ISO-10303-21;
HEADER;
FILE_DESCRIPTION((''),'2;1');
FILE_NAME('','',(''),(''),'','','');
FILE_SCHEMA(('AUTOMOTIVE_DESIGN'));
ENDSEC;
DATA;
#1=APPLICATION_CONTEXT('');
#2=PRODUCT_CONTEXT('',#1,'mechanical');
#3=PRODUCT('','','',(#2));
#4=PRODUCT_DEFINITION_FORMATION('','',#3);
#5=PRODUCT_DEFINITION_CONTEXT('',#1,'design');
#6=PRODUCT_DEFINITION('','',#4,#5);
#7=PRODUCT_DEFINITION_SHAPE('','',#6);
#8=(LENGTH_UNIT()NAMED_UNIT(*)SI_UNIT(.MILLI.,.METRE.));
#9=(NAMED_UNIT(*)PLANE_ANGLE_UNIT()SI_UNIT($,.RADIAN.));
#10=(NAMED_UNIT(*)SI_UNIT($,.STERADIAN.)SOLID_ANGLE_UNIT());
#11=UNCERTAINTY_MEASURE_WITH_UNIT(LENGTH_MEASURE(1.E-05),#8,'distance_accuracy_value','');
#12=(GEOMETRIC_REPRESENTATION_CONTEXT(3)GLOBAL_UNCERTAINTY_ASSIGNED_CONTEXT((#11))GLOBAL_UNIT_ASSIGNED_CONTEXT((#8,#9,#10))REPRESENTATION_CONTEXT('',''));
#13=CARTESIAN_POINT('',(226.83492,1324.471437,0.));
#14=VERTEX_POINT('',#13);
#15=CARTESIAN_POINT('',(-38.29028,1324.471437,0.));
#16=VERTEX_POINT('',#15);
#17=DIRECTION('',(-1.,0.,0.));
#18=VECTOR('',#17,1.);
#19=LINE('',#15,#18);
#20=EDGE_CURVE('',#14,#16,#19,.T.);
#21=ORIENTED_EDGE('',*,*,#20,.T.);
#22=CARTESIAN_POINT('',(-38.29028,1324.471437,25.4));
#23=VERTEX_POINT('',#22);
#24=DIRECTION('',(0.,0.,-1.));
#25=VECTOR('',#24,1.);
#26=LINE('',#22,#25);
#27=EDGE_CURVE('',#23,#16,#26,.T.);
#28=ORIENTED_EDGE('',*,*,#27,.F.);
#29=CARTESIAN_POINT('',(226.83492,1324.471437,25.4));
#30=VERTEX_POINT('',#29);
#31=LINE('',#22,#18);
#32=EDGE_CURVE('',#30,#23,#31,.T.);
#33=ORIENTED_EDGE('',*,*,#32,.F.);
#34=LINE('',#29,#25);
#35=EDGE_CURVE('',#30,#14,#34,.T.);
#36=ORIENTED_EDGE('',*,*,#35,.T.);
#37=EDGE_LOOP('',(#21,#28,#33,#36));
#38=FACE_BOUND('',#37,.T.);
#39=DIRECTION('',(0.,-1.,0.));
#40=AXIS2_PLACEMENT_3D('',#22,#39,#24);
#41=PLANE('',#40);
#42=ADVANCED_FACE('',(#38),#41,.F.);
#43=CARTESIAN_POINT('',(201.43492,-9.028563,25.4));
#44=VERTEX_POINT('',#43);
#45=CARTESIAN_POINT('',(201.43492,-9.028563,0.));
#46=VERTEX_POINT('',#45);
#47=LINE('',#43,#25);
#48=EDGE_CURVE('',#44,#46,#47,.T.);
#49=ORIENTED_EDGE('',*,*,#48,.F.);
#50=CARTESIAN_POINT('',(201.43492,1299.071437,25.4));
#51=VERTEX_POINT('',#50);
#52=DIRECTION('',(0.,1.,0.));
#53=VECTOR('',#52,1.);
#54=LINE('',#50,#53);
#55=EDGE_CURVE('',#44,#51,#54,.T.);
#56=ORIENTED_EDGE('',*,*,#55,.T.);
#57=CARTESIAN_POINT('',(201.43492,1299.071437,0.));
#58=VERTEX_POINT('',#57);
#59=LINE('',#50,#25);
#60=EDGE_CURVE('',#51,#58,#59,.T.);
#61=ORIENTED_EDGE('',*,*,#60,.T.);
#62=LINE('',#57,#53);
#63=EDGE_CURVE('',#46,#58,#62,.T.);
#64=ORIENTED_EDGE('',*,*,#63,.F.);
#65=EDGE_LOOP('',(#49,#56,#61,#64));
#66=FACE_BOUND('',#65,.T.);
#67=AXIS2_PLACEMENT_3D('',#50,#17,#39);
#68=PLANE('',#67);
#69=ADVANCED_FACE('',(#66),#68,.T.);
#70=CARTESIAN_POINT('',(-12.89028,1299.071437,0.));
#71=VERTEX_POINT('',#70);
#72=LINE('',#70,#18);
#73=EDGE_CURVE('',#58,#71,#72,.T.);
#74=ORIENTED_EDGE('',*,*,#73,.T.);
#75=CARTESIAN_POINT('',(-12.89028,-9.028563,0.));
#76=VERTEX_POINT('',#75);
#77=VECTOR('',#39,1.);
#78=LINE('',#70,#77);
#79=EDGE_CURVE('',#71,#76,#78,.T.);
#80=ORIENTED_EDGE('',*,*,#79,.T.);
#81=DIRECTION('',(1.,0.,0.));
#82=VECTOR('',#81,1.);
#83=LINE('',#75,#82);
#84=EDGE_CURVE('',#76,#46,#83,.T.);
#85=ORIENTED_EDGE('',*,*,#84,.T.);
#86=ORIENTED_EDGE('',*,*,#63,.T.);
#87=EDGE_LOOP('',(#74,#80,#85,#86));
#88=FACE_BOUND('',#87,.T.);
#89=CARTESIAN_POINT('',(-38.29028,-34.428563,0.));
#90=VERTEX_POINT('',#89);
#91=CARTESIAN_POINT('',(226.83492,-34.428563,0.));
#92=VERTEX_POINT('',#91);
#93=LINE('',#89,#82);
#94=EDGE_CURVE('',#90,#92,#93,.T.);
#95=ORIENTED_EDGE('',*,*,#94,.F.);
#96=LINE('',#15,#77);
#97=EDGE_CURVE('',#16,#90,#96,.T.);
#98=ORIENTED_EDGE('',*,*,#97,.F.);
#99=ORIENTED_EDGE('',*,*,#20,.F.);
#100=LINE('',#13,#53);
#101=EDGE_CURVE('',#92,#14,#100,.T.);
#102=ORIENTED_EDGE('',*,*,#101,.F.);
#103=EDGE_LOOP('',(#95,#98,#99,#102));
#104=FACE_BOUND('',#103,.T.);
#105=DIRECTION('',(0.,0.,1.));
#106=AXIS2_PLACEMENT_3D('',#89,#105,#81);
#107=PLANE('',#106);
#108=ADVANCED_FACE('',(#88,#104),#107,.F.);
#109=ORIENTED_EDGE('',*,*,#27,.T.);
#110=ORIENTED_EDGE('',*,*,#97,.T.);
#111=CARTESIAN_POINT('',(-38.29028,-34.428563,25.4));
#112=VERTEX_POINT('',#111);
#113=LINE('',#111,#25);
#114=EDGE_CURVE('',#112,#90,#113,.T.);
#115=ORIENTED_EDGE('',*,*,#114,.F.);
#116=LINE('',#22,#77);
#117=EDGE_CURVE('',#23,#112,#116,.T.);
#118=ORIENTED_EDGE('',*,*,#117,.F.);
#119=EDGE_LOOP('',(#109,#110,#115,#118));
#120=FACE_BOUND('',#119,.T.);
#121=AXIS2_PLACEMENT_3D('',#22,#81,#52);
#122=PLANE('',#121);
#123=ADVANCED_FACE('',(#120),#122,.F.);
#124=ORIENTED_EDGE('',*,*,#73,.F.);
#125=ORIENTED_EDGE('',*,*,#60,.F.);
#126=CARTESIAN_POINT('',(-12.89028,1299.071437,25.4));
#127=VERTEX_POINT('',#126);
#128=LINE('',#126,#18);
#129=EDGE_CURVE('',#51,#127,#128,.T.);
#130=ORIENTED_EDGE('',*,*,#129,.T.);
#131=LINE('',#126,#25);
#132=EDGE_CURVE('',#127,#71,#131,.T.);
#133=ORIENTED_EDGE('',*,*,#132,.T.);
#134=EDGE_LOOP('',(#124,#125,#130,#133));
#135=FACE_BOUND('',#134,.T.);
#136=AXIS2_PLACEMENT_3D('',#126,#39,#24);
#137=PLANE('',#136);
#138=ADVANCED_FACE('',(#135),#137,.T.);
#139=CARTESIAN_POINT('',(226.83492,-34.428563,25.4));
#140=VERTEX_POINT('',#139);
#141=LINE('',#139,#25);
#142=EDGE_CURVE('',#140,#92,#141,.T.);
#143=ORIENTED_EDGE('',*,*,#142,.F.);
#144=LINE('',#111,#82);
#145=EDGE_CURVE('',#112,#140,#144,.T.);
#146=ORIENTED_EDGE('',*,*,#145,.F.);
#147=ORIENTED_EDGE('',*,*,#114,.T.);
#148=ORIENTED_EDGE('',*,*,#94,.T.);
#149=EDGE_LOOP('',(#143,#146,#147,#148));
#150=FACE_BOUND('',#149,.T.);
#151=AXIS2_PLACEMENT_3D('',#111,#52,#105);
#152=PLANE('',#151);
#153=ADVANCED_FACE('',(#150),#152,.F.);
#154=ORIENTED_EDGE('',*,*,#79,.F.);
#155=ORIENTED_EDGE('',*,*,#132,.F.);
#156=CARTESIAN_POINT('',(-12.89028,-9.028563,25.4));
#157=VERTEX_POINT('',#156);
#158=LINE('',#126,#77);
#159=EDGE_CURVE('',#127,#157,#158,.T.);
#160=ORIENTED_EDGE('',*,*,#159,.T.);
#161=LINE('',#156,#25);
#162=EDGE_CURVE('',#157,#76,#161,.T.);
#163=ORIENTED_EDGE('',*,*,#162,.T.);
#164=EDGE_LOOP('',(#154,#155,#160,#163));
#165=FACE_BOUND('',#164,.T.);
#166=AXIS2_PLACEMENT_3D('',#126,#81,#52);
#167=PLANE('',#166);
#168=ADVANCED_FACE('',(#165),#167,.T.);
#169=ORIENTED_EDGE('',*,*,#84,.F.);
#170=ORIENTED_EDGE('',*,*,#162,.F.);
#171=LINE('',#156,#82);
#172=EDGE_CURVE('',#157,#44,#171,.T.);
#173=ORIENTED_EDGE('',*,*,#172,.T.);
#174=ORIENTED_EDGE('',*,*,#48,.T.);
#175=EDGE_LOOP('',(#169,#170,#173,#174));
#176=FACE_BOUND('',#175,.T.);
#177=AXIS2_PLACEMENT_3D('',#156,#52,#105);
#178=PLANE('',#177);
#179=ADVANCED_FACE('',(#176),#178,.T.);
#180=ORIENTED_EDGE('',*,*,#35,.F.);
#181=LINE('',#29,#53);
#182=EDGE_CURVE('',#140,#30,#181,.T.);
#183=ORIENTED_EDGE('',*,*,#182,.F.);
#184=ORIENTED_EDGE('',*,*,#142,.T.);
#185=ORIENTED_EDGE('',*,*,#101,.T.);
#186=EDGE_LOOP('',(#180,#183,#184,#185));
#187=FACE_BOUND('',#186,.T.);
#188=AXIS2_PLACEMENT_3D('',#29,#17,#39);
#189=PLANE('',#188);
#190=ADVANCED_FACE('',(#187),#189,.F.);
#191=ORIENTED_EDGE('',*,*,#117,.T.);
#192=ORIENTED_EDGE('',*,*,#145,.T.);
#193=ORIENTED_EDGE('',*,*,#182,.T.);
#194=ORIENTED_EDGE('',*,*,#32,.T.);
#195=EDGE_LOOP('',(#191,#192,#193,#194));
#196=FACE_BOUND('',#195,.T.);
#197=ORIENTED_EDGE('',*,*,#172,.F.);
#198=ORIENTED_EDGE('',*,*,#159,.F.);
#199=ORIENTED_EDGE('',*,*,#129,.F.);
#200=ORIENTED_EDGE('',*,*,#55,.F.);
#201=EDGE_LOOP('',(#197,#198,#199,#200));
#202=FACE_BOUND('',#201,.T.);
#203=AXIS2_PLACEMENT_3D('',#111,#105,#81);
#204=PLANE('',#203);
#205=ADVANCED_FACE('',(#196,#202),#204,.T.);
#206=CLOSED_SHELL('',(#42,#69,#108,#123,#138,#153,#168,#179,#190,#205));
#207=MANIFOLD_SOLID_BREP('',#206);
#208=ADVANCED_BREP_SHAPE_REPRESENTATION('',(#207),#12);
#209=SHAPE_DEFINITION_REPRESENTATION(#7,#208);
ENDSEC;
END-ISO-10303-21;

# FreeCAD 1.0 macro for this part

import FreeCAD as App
import Part
import Sketcher

V = App.Vector
Q = App.Units.Quantity


def add_polygon(sketch, points):
    """Adds a closed chain of lines whose ends are joined by coincident constraints."""
    first, n = sketch.GeometryCount, len(points)
    for a, b in zip(points, points[1:] + points[:1]):
        sketch.addGeometry(Part.LineSegment(App.Vector(*a, 0), App.Vector(*b, 0)), False)
    for i in range(n):
        sketch.addConstraint(Sketcher.Constraint("Coincident", first + i, 2, first + (i + 1) % n, 1))

doc = App.newDocument("Part")
body = doc.addObject("PartDesign::Body", "Body")

sketch1 = body.newObject("Sketcher::SketchObject", "Sketch")
sketch1.AttachmentSupport = (doc.getObject("XY_Plane"), [""])
sketch1.MapMode = "FlatFace"
add_polygon(sketch1, [(-38.29028, 1324.471437), (-38.29028, -34.428563), (226.83492, -34.428563), (226.83492, 1324.471437)])
add_polygon(sketch1, [(201.43492, -9.028563), (-12.89028, -9.028563), (-12.89028, 1299.071437), (201.43492, 1299.071437)])
sketch1.addConstraint([
    Sketcher.Constraint("Vertical", 0),
    Sketcher.Constraint("Horizontal", 1),
    Sketcher.Constraint("Vertical", 2),
    Sketcher.Constraint("Horizontal", 3),
    Sketcher.Constraint("Horizontal", 4),
    Sketcher.Constraint("Vertical", 5),
    Sketcher.Constraint("Horizontal", 6),
    Sketcher.Constraint("Vertical", 7),
    Sketcher.Constraint("DistanceY", 0, 2, 0, 1, Q("53.5 in")),
    Sketcher.Constraint("DistanceY", 5, 1, 5, 2, Q("51.5 in")),
    Sketcher.Constraint("DistanceX", 0, 2, 4, 2, Q("1 in")),
    Sketcher.Constraint("DistanceY", 0, 2, 4, 2, Q("1 in")),
    Sketcher.Constraint("DistanceX", 6, 2, 2, 2, Q("1 in")),
    Sketcher.Constraint("DistanceX", 1, 1, 1, 2, Q("10.438 in")),
    Sketcher.Constraint("DistanceX", 0, 2, -1, 1, 38.29028),
    Sketcher.Constraint("DistanceY", 0, 2, -1, 1, 34.428563),
])
pad1 = body.newObject("PartDesign::Pad", "Pad")
pad1.Profile = sketch1
pad1.Length = Q("1 in")

doc.recompute()
